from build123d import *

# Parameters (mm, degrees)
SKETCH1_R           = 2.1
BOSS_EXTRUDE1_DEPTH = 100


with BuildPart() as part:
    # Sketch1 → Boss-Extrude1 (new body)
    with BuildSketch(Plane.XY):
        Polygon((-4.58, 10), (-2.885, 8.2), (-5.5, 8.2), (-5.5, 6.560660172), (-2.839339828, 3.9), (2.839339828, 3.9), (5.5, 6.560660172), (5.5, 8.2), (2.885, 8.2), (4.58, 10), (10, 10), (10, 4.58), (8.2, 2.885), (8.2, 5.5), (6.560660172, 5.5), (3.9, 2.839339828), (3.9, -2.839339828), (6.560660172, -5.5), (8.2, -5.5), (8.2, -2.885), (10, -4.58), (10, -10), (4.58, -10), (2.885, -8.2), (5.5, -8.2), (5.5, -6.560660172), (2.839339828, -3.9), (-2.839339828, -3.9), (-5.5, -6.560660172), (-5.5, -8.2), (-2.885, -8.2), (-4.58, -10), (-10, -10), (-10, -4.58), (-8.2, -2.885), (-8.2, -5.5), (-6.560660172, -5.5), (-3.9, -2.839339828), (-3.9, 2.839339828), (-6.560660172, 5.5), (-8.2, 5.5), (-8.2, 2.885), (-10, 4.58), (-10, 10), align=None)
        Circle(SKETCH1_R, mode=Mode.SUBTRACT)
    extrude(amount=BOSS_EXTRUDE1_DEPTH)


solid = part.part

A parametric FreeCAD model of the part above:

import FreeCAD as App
import Part
import Sketcher
from FreeCAD import Vector

doc = App.newDocument("Part")
body = doc.addObject("PartDesign::Body", "Body")

# Sketch on XY plane
sketch1 = body.newObject("Sketcher::SketchObject", "Sketch")
sketch1.AttachmentSupport = (doc.getObject("XY_Plane"), [""])
sketch1.MapMode = "FlatFace"
sketch1.addGeometry(Part.LineSegment(Vector(-2.885, 8.2, 0), Vector(-4.58, 10, 0)), False)
sketch1.addGeometry(Part.LineSegment(Vector(-4.58, 10, 0), Vector(-10, 10, 0)), False)
sketch1.addGeometry(Part.LineSegment(Vector(-10, 10, 0), Vector(-10, 4.58, 0)), False)
sketch1.addGeometry(Part.LineSegment(Vector(-10, 4.58, 0), Vector(-8.2, 2.885, 0)), False)
sketch1.addGeometry(Part.LineSegment(Vector(-8.2, 2.885, 0), Vector(-8.2, 5.5, 0)), False)
sketch1.addGeometry(Part.LineSegment(Vector(-8.2, 5.5, 0), Vector(-6.56066, 5.5, 0)), False)
sketch1.addGeometry(Part.LineSegment(Vector(-6.56066, 5.5, 0), Vector(-3.9, 2.83934, 0)), False)
sketch1.addGeometry(Part.LineSegment(Vector(-3.9, 2.83934, 0), Vector(-3.9, -2.83934, 0)), False)
sketch1.addGeometry(Part.LineSegment(Vector(-3.9, -2.83934, 0), Vector(-6.56066, -5.5, 0)), False)
sketch1.addGeometry(Part.LineSegment(Vector(-6.56066, -5.5, 0), Vector(-8.2, -5.5, 0)), False)
sketch1.addGeometry(Part.LineSegment(Vector(-8.2, -5.5, 0), Vector(-8.2, -2.885, 0)), False)
sketch1.addGeometry(Part.LineSegment(Vector(-8.2, -2.885, 0), Vector(-10, -4.58, 0)), False)
sketch1.addGeometry(Part.LineSegment(Vector(-10, -4.58, 0), Vector(-10, -10, 0)), False)
sketch1.addGeometry(Part.LineSegment(Vector(-10, -10, 0), Vector(-4.58, -10, 0)), False)
sketch1.addGeometry(Part.LineSegment(Vector(-4.58, -10, 0), Vector(-2.885, -8.2, 0)), False)
sketch1.addGeometry(Part.LineSegment(Vector(-2.885, -8.2, 0), Vector(-5.5, -8.2, 0)), False)
sketch1.addGeometry(Part.LineSegment(Vector(-5.5, -8.2, 0), Vector(-5.5, -6.56066, 0)), False)
sketch1.addGeometry(Part.LineSegment(Vector(-5.5, -6.56066, 0), Vector(-2.83934, -3.9, 0)), False)
sketch1.addGeometry(Part.LineSegment(Vector(-2.83934, -3.9, 0), Vector(2.83934, -3.9, 0)), False)
sketch1.addGeometry(Part.LineSegment(Vector(2.83934, -3.9, 0), Vector(5.5, -6.56066, 0)), False)
sketch1.addGeometry(Part.LineSegment(Vector(5.5, -6.56066, 0), Vector(5.5, -8.2, 0)), False)
sketch1.addGeometry(Part.LineSegment(Vector(5.5, -8.2, 0), Vector(2.885, -8.2, 0)), False)
sketch1.addGeometry(Part.LineSegment(Vector(2.885, -8.2, 0), Vector(4.58, -10, 0)), False)
sketch1.addGeometry(Part.LineSegment(Vector(4.58, -10, 0), Vector(10, -10, 0)), False)
sketch1.addGeometry(Part.LineSegment(Vector(10, -10, 0), Vector(10, -4.58, 0)), False)
sketch1.addGeometry(Part.LineSegment(Vector(10, -4.58, 0), Vector(8.2, -2.885, 0)), False)
sketch1.addGeometry(Part.LineSegment(Vector(8.2, -2.885, 0), Vector(8.2, -5.5, 0)), False)
sketch1.addGeometry(Part.LineSegment(Vector(8.2, -5.5, 0), Vector(6.56066, -5.5, 0)), False)
sketch1.addGeometry(Part.LineSegment(Vector(6.56066, -5.5, 0), Vector(3.9, -2.83934, 0)), False)
sketch1.addGeometry(Part.LineSegment(Vector(3.9, -2.83934, 0), Vector(3.9, 2.83934, 0)), False)
sketch1.addGeometry(Part.LineSegment(Vector(3.9, 2.83934, 0), Vector(6.56066, 5.5, 0)), False)
sketch1.addGeometry(Part.LineSegment(Vector(6.56066, 5.5, 0), Vector(8.2, 5.5, 0)), False)
sketch1.addGeometry(Part.LineSegment(Vector(8.2, 5.5, 0), Vector(8.2, 2.885, 0)), False)
sketch1.addGeometry(Part.LineSegment(Vector(8.2, 2.885, 0), Vector(10, 4.58, 0)), False)
sketch1.addGeometry(Part.LineSegment(Vector(10, 4.58, 0), Vector(10, 10, 0)), False)
sketch1.addGeometry(Part.LineSegment(Vector(10, 10, 0), Vector(4.58, 10, 0)), False)
sketch1.addGeometry(Part.LineSegment(Vector(4.58, 10, 0), Vector(2.885, 8.2, 0)), False)
sketch1.addGeometry(Part.LineSegment(Vector(2.885, 8.2, 0), Vector(5.5, 8.2, 0)), False)
sketch1.addGeometry(Part.LineSegment(Vector(5.5, 8.2, 0), Vector(5.5, 6.56066, 0)), False)
sketch1.addGeometry(Part.LineSegment(Vector(5.5, 6.56066, 0), Vector(2.83934, 3.9, 0)), False)
sketch1.addGeometry(Part.LineSegment(Vector(2.83934, 3.9, 0), Vector(-2.83934, 3.9, 0)), False)
sketch1.addGeometry(Part.LineSegment(Vector(-2.83934, 3.9, 0), Vector(-5.5, 6.56066, 0)), False)
sketch1.addGeometry(Part.LineSegment(Vector(-5.5, 6.56066, 0), Vector(-5.5, 8.2, 0)), False)
sketch1.addGeometry(Part.LineSegment(Vector(-5.5, 8.2, 0), Vector(-2.885, 8.2, 0)), False)
sketch1.addGeometry(Part.Circle(Vector(0, 0, 0), Vector(0, 0, 1), 2.1), False)
sketch1.addConstraint(Sketcher.Constraint("Coincident", 0, 2, 1, 1))
sketch1.addConstraint(Sketcher.Constraint("Coincident", 1, 2, 2, 1))
sketch1.addConstraint(Sketcher.Constraint("Coincident", 2, 2, 3, 1))
sketch1.addConstraint(Sketcher.Constraint("Coincident", 3, 2, 4, 1))
sketch1.addConstraint(Sketcher.Constraint("Coincident", 4, 2, 5, 1))
sketch1.addConstraint(Sketcher.Constraint("Coincident", 5, 2, 6, 1))
sketch1.addConstraint(Sketcher.Constraint("Coincident", 6, 2, 7, 1))
sketch1.addConstraint(Sketcher.Constraint("Coincident", 7, 2, 8, 1))
sketch1.addConstraint(Sketcher.Constraint("Coincident", 8, 2, 9, 1))
sketch1.addConstraint(Sketcher.Constraint("Coincident", 9, 2, 10, 1))
sketch1.addConstraint(Sketcher.Constraint("Coincident", 10, 2, 11, 1))
sketch1.addConstraint(Sketcher.Constraint("Coincident", 11, 2, 12, 1))
sketch1.addConstraint(Sketcher.Constraint("Coincident", 12, 2, 13, 1))
sketch1.addConstraint(Sketcher.Constraint("Coincident", 13, 2, 14, 1))
sketch1.addConstraint(Sketcher.Constraint("Coincident", 14, 2, 15, 1))
sketch1.addConstraint(Sketcher.Constraint("Coincident", 15, 2, 16, 1))
sketch1.addConstraint(Sketcher.Constraint("Coincident", 16, 2, 17, 1))
sketch1.addConstraint(Sketcher.Constraint("Coincident", 17, 2, 18, 1))
sketch1.addConstraint(Sketcher.Constraint("Coincident", 18, 2, 19, 1))
sketch1.addConstraint(Sketcher.Constraint("Coincident", 19, 2, 20, 1))
sketch1.addConstraint(Sketcher.Constraint("Coincident", 20, 2, 21, 1))
sketch1.addConstraint(Sketcher.Constraint("Coincident", 21, 2, 22, 1))
sketch1.addConstraint(Sketcher.Constraint("Coincident", 22, 2, 23, 1))
sketch1.addConstraint(Sketcher.Constraint("Coincident", 23, 2, 24, 1))
sketch1.addConstraint(Sketcher.Constraint("Coincident", 24, 2, 25, 1))
sketch1.addConstraint(Sketcher.Constraint("Coincident", 25, 2, 26, 1))
sketch1.addConstraint(Sketcher.Constraint("Coincident", 26, 2, 27, 1))
sketch1.addConstraint(Sketcher.Constraint("Coincident", 27, 2, 28, 1))
sketch1.addConstraint(Sketcher.Constraint("Coincident", 28, 2, 29, 1))
sketch1.addConstraint(Sketcher.Constraint("Coincident", 29, 2, 30, 1))
sketch1.addConstraint(Sketcher.Constraint("Coincident", 30, 2, 31, 1))
sketch1.addConstraint(Sketcher.Constraint("Coincident", 31, 2, 32, 1))
sketch1.addConstraint(Sketcher.Constraint("Coincident", 32, 2, 33, 1))
sketch1.addConstraint(Sketcher.Constraint("Coincident", 33, 2, 34, 1))
sketch1.addConstraint(Sketcher.Constraint("Coincident", 34, 2, 35, 1))
sketch1.addConstraint(Sketcher.Constraint("Coincident", 35, 2, 36, 1))
sketch1.addConstraint(Sketcher.Constraint("Coincident", 36, 2, 37, 1))
sketch1.addConstraint(Sketcher.Constraint("Coincident", 37, 2, 38, 1))
sketch1.addConstraint(Sketcher.Constraint("Coincident", 38, 2, 39, 1))
sketch1.addConstraint(Sketcher.Constraint("Coincident", 39, 2, 40, 1))
sketch1.addConstraint(Sketcher.Constraint("Coincident", 40, 2, 41, 1))
sketch1.addConstraint(Sketcher.Constraint("Coincident", 41, 2, 42, 1))
sketch1.addConstraint(Sketcher.Constraint("Coincident", 42, 2, 43, 1))
sketch1.addConstraint(Sketcher.Constraint("Coincident", 43, 2, 0, 1))
sketch1.addConstraint(Sketcher.Constraint("Horizontal", 1))
sketch1.addConstraint(Sketcher.Constraint("Vertical", 2))
sketch1.addConstraint(Sketcher.Constraint("Vertical", 4))
sketch1.addConstraint(Sketcher.Constraint("Horizontal", 5))
sketch1.addConstraint(Sketcher.Constraint("Vertical", 7))
sketch1.addConstraint(Sketcher.Constraint("Horizontal", 9))
sketch1.addConstraint(Sketcher.Constraint("Vertical", 10))
sketch1.addConstraint(Sketcher.Constraint("Vertical", 12))
sketch1.addConstraint(Sketcher.Constraint("Horizontal", 13))
sketch1.addConstraint(Sketcher.Constraint("Horizontal", 15))
sketch1.addConstraint(Sketcher.Constraint("Vertical", 16))
sketch1.addConstraint(Sketcher.Constraint("Horizontal", 18))
sketch1.addConstraint(Sketcher.Constraint("Vertical", 20))
sketch1.addConstraint(Sketcher.Constraint("Horizontal", 21))
sketch1.addConstraint(Sketcher.Constraint("Horizontal", 23))
sketch1.addConstraint(Sketcher.Constraint("Vertical", 24))
sketch1.addConstraint(Sketcher.Constraint("Vertical", 26))
sketch1.addConstraint(Sketcher.Constraint("Horizontal", 27))
sketch1.addConstraint(Sketcher.Constraint("Vertical", 29))
sketch1.addConstraint(Sketcher.Constraint("Horizontal", 31))
sketch1.addConstraint(Sketcher.Constraint("Vertical", 32))
sketch1.addConstraint(Sketcher.Constraint("Vertical", 34))
sketch1.addConstraint(Sketcher.Constraint("Horizontal", 35))
sketch1.addConstraint(Sketcher.Constraint("Horizontal", 37))
sketch1.addConstraint(Sketcher.Constraint("Vertical", 38))
sketch1.addConstraint(Sketcher.Constraint("Horizontal", 40))
sketch1.addConstraint(Sketcher.Constraint("Vertical", 42))
sketch1.addConstraint(Sketcher.Constraint("Horizontal", 43))
sketch1.addConstraint(Sketcher.Constraint("Coincident", 44, 3, -1, 1))
sketch1.addConstraint(Sketcher.Constraint("Symmetric", 0, 2, 22, 2, -1, 1))
sketch1.addConstraint(Sketcher.Constraint("Symmetric", 2, 2, 24, 2, -1, 1))
sketch1.addConstraint(Sketcher.Constraint("Symmetric", 3, 2, 25, 2, -1, 1))
sketch1.addConstraint(Sketcher.Constraint("Symmetric", 5, 2, 27, 2, -1, 1))
sketch1.addConstraint(Sketcher.Constraint("Symmetric", 6, 2, 28, 2, -1, 1))
sketch1.addConstraint(Sketcher.Constraint("Symmetric", 8, 2, 30, 2, -1, 1))
sketch1.addConstraint(Sketcher.Constraint("Symmetric", 10, 2, 32, 2, -1, 1))
sketch1.addConstraint(Sketcher.Constraint("Symmetric", 11, 2, 33, 2, -1, 1))
sketch1.addConstraint(Sketcher.Constraint("Symmetric", 13, 2, 35, 2, -1, 1))
sketch1.addConstraint(Sketcher.Constraint("Symmetric", 14, 2, 36, 2, -1, 1))
sketch1.addConstraint(Sketcher.Constraint("Symmetric", 16, 2, 38, 2, -1, 1))
sketch1.addConstraint(Sketcher.Constraint("Symmetric", 17, 2, 39, 2, -1, 1))
sketch1.addConstraint(Sketcher.Constraint("Symmetric", 19, 2, 41, 2, -1, 1))
sketch1.addConstraint(Sketcher.Constraint("Symmetric", 21, 2, 43, 2, -1, 1))
sketch1.addConstraint(Sketcher.Constraint("Symmetric", 16, 2, 19, 2, -2))
sketch1.addConstraint(Sketcher.Constraint("Symmetric", 14, 2, 21, 2, -2))
sketch1.addConstraint(Sketcher.Constraint("Symmetric", 13, 2, 22, 2, -2))
sketch1.addConstraint(Sketcher.Constraint("Symmetric", 11, 2, 24, 2, -2))
sketch1.addConstraint(Sketcher.Constraint("Symmetric", 10, 2, 25, 2, -2))
sketch1.addConstraint(Sketcher.Constraint("Symmetric", 8, 2, 27, 2, -2))
sketch1.addConstraint(Sketcher.Constraint("Perpendicular", 6, 8))
sketch1.addConstraint(Sketcher.Constraint("Perpendicular", 0, 11))
sketch1.addConstraint(Sketcher.Constraint("Parallel", 8, 17))
sketch1.addConstraint(Sketcher.Constraint("Perpendicular", 17, 19))
sketch1.addConstraint(Sketcher.Constraint("Perpendicular", 28, 30))
sketch1.addConstraint(Sketcher.Constraint("Perpendicular", 39, 41))
sketch1.addConstraint(Sketcher.Constraint("Horizontal", 7, 2, 28, 2))
sketch1.addConstraint(Sketcher.Constraint("Equal", 35, 2))
sketch1.addConstraint(Sketcher.Constraint("Equal", 43, 4))
sketch1.addConstraint(Sketcher.Constraint("Equal", 40, 7))
sketch1.addConstraint(Sketcher.Constraint("Equal", 31, 16))
sketch1.addConstraint(Sketcher.Constraint("Equal", 0, 3))
sketch1.addConstraint(Sketcher.Constraint("Equal", 8, 17))
sketch1.addConstraint(Sketcher.Constraint("Diameter", 44, 4.2))
sketch1.addConstraint(Sketcher.Constraint("DistanceY", -1, 1, 0, 2, 10.0))
sketch1.addConstraint(Sketcher.Constraint("DistanceX", 1, 2, 1, 1, 5.42))
sketch1.addConstraint(Sketcher.Constraint("DistanceX", 3, 2, -1, 1, 8.2))
sketch1.addConstraint(Sketcher.Constraint("DistanceY", -1, 1, 4, 2, 5.5))
sketch1.addConstraint(Sketcher.Constraint("DistanceX", 6, 2, -1, 1, 3.9))
sketch1.addConstraint(Sketcher.Constraint("DistanceX", 15, 2, 15, 1, 2.615))
sketch1.addConstraint(Sketcher.Constraint("DistanceX", 5, 1, 5, 2, 1.63934))
pad1 = body.newObject("PartDesign::Pad", "Pad")
pad1.Profile = sketch1
pad1.Length = 100

doc.recompute()
